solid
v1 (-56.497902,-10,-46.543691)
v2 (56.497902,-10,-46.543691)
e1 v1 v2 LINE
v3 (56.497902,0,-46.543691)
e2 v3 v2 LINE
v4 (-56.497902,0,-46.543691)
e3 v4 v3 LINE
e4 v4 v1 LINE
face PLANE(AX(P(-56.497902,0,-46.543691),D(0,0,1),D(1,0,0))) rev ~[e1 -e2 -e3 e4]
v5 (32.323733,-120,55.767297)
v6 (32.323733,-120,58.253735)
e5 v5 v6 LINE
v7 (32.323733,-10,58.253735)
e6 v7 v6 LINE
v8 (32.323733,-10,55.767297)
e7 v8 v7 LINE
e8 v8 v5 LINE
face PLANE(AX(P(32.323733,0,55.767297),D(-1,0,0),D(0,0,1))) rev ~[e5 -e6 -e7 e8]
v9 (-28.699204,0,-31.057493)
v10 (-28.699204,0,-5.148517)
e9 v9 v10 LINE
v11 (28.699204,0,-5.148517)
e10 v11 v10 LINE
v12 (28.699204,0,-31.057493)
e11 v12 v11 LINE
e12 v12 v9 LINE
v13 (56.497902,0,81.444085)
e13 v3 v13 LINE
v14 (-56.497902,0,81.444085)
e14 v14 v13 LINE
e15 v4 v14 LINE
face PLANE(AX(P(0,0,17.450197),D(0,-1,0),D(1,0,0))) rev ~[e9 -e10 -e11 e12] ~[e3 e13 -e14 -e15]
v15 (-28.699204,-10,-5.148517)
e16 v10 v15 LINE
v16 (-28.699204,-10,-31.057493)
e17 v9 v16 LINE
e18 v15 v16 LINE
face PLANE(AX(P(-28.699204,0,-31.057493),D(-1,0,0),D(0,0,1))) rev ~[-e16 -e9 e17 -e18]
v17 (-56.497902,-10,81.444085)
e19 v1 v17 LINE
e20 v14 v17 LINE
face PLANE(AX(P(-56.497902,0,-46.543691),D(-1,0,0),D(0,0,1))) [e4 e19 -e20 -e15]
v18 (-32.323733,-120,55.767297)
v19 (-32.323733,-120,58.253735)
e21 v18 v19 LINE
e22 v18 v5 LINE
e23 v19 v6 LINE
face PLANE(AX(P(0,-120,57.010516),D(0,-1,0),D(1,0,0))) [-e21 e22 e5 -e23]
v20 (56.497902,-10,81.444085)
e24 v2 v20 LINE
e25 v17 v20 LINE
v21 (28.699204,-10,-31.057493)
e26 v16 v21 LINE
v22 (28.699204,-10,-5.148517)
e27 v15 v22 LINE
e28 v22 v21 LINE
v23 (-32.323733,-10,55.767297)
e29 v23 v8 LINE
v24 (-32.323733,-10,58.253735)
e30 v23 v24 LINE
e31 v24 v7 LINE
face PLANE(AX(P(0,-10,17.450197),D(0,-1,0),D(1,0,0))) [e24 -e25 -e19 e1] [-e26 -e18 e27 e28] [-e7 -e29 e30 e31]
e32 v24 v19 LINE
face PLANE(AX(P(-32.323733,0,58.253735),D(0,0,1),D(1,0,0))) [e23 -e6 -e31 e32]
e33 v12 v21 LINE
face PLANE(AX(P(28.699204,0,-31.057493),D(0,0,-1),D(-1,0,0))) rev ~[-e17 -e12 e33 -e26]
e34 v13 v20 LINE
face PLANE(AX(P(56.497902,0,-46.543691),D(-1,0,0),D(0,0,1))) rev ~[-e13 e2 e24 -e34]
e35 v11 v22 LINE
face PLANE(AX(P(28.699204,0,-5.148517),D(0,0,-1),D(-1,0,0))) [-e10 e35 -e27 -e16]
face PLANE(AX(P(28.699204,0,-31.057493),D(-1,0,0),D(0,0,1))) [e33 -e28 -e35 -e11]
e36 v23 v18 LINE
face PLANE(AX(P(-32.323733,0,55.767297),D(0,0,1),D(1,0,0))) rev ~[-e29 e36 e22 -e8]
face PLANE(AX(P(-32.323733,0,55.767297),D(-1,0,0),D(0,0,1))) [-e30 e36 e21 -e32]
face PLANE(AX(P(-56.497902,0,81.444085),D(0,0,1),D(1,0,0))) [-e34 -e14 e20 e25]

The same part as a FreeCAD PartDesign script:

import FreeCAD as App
import Part
import Sketcher

V = App.Vector

doc = App.newDocument("Part")
params = doc.addObject("Spreadsheet::Sheet", "Params")
for row, (alias, value) in enumerate([
    ("pad1_length", "120 mm"),
    ("pad2_length", "10 mm"),
    ("pocket1_length", "25 mm"),
], start=1):
    params.set(f"A{row}", alias)
    params.set(f"B{row}", "=" + value)
    params.setAlias(f"B{row}", alias)

body = doc.addObject("PartDesign::Body", "Body")

sketch1 = body.newObject("Sketcher::SketchObject", "Sketch")
sketch1.AttachmentSupport = (doc.getObject("XZ_Plane"), [""])
sketch1.MapMode = "FlatFace"
sketch1.addGeometry(Part.LineSegment(V(-32.3, 58.3, 0), V(-32.3, 55.8, 0)), False)
sketch1.addGeometry(Part.LineSegment(V(-32.3, 55.8, 0), V(32.3, 55.8, 0)), False)
sketch1.addGeometry(Part.LineSegment(V(32.3, 55.8, 0), V(32.3, 58.3, 0)), False)
sketch1.addGeometry(Part.LineSegment(V(32.3, 58.3, 0), V(-32.3, 58.3, 0)), False)
sketch1.addConstraint(Sketcher.Constraint("Coincident", 0, 2, 1, 1))
sketch1.addConstraint(Sketcher.Constraint("Coincident", 1, 2, 2, 1))
sketch1.addConstraint(Sketcher.Constraint("Coincident", 2, 2, 3, 1))
sketch1.addConstraint(Sketcher.Constraint("Coincident", 3, 2, 0, 1))
sketch1.addConstraint(Sketcher.Constraint("Vertical", 0))
sketch1.addConstraint(Sketcher.Constraint("Horizontal", 1))
sketch1.addConstraint(Sketcher.Constraint("Vertical", 2))
sketch1.addConstraint(Sketcher.Constraint("Horizontal", 3))
sketch1.addConstraint(Sketcher.Constraint("DistanceX", 1, 1, 1, 2, 64.647466))
sketch1.addConstraint(Sketcher.Constraint("DistanceY", 0, 2, 0, 1, 2.486437))
sketch1.addConstraint(Sketcher.Constraint("DistanceX", 0, 2, -1, 1, 32.323733))
sketch1.addConstraint(Sketcher.Constraint("DistanceY", -1, 1, 0, 2, 55.767297))
pad1 = body.newObject("PartDesign::Pad", "Pad")
pad1.Profile = sketch1
pad1.setExpression("Length", "Params.pad1_length")

sketch2 = body.newObject("Sketcher::SketchObject", "Sketch001")
sketch2.AttachmentSupport = (doc.getObject("XZ_Plane"), [""])
sketch2.MapMode = "FlatFace"
sketch2.addGeometry(Part.LineSegment(V(-56, 81, 0), V(-56, -47, 0)), False)
sketch2.addGeometry(Part.LineSegment(V(-56, -47, 0), V(56, -47, 0)), False)
sketch2.addGeometry(Part.LineSegment(V(56, -47, 0), V(56, 81, 0)), False)
sketch2.addGeometry(Part.LineSegment(V(56, 81, 0), V(-56, 81, 0)), False)
sketch2.addConstraint(Sketcher.Constraint("Coincident", 0, 2, 1, 1))
sketch2.addConstraint(Sketcher.Constraint("Coincident", 1, 2, 2, 1))
sketch2.addConstraint(Sketcher.Constraint("Coincident", 2, 2, 3, 1))
sketch2.addConstraint(Sketcher.Constraint("Coincident", 3, 2, 0, 1))
sketch2.addConstraint(Sketcher.Constraint("Vertical", 0))
sketch2.addConstraint(Sketcher.Constraint("Horizontal", 1))
sketch2.addConstraint(Sketcher.Constraint("Vertical", 2))
sketch2.addConstraint(Sketcher.Constraint("Horizontal", 3))
sketch2.addConstraint(Sketcher.Constraint("DistanceX", 1, 1, 1, 2, 112.995804))
sketch2.addConstraint(Sketcher.Constraint("DistanceY", 0, 2, 0, 1, 127.987776))
sketch2.addConstraint(Sketcher.Constraint("DistanceY", 0, 2, -1, 1, 46.543691))
sketch2.addConstraint(Sketcher.Constraint("DistanceX", 0, 2, -1, 1, 56.497902))
pad2 = body.newObject("PartDesign::Pad", "Pad001")
pad2.Profile = sketch2
pad2.setExpression("Length", "Params.pad2_length")

sketch3 = body.newObject("Sketcher::SketchObject", "Sketch002")
sketch3.AttachmentSupport = (doc.getObject("XZ_Plane"), [""])
sketch3.MapMode = "FlatFace"
sketch3.addGeometry(Part.LineSegment(V(29, -5, 0), V(29, -31, 0)), False)
sketch3.addGeometry(Part.LineSegment(V(29, -31, 0), V(-29, -31, 0)), False)
sketch3.addGeometry(Part.LineSegment(V(-29, -31, 0), V(-29, -5, 0)), False)
sketch3.addGeometry(Part.LineSegment(V(-29, -5, 0), V(29, -5, 0)), False)
sketch3.addConstraint(Sketcher.Constraint("Coincident", 0, 2, 1, 1))
sketch3.addConstraint(Sketcher.Constraint("Coincident", 1, 2, 2, 1))
sketch3.addConstraint(Sketcher.Constraint("Coincident", 2, 2, 3, 1))
sketch3.addConstraint(Sketcher.Constraint("Coincident", 3, 2, 0, 1))
sketch3.addConstraint(Sketcher.Constraint("Vertical", 0))
sketch3.addConstraint(Sketcher.Constraint("Horizontal", 1))
sketch3.addConstraint(Sketcher.Constraint("Vertical", 2))
sketch3.addConstraint(Sketcher.Constraint("Horizontal", 3))
sketch3.addConstraint(Sketcher.Constraint("DistanceX", 1, 2, 1, 1, 57.398408))
sketch3.addConstraint(Sketcher.Constraint("DistanceY", 0, 2, 0, 1, 25.908977))
sketch3.addConstraint(Sketcher.Constraint("DistanceX", -1, 1, 0, 2, 28.699204))
sketch3.addConstraint(Sketcher.Constraint("DistanceY", 0, 2, -1, 1, 31.057493))
pocket1 = body.newObject("PartDesign::Pocket", "Pocket")
pocket1.Profile = sketch3
pocket1.setExpression("Length", "Params.pocket1_length")
pocket1.Reversed = True

doc.recompute()
